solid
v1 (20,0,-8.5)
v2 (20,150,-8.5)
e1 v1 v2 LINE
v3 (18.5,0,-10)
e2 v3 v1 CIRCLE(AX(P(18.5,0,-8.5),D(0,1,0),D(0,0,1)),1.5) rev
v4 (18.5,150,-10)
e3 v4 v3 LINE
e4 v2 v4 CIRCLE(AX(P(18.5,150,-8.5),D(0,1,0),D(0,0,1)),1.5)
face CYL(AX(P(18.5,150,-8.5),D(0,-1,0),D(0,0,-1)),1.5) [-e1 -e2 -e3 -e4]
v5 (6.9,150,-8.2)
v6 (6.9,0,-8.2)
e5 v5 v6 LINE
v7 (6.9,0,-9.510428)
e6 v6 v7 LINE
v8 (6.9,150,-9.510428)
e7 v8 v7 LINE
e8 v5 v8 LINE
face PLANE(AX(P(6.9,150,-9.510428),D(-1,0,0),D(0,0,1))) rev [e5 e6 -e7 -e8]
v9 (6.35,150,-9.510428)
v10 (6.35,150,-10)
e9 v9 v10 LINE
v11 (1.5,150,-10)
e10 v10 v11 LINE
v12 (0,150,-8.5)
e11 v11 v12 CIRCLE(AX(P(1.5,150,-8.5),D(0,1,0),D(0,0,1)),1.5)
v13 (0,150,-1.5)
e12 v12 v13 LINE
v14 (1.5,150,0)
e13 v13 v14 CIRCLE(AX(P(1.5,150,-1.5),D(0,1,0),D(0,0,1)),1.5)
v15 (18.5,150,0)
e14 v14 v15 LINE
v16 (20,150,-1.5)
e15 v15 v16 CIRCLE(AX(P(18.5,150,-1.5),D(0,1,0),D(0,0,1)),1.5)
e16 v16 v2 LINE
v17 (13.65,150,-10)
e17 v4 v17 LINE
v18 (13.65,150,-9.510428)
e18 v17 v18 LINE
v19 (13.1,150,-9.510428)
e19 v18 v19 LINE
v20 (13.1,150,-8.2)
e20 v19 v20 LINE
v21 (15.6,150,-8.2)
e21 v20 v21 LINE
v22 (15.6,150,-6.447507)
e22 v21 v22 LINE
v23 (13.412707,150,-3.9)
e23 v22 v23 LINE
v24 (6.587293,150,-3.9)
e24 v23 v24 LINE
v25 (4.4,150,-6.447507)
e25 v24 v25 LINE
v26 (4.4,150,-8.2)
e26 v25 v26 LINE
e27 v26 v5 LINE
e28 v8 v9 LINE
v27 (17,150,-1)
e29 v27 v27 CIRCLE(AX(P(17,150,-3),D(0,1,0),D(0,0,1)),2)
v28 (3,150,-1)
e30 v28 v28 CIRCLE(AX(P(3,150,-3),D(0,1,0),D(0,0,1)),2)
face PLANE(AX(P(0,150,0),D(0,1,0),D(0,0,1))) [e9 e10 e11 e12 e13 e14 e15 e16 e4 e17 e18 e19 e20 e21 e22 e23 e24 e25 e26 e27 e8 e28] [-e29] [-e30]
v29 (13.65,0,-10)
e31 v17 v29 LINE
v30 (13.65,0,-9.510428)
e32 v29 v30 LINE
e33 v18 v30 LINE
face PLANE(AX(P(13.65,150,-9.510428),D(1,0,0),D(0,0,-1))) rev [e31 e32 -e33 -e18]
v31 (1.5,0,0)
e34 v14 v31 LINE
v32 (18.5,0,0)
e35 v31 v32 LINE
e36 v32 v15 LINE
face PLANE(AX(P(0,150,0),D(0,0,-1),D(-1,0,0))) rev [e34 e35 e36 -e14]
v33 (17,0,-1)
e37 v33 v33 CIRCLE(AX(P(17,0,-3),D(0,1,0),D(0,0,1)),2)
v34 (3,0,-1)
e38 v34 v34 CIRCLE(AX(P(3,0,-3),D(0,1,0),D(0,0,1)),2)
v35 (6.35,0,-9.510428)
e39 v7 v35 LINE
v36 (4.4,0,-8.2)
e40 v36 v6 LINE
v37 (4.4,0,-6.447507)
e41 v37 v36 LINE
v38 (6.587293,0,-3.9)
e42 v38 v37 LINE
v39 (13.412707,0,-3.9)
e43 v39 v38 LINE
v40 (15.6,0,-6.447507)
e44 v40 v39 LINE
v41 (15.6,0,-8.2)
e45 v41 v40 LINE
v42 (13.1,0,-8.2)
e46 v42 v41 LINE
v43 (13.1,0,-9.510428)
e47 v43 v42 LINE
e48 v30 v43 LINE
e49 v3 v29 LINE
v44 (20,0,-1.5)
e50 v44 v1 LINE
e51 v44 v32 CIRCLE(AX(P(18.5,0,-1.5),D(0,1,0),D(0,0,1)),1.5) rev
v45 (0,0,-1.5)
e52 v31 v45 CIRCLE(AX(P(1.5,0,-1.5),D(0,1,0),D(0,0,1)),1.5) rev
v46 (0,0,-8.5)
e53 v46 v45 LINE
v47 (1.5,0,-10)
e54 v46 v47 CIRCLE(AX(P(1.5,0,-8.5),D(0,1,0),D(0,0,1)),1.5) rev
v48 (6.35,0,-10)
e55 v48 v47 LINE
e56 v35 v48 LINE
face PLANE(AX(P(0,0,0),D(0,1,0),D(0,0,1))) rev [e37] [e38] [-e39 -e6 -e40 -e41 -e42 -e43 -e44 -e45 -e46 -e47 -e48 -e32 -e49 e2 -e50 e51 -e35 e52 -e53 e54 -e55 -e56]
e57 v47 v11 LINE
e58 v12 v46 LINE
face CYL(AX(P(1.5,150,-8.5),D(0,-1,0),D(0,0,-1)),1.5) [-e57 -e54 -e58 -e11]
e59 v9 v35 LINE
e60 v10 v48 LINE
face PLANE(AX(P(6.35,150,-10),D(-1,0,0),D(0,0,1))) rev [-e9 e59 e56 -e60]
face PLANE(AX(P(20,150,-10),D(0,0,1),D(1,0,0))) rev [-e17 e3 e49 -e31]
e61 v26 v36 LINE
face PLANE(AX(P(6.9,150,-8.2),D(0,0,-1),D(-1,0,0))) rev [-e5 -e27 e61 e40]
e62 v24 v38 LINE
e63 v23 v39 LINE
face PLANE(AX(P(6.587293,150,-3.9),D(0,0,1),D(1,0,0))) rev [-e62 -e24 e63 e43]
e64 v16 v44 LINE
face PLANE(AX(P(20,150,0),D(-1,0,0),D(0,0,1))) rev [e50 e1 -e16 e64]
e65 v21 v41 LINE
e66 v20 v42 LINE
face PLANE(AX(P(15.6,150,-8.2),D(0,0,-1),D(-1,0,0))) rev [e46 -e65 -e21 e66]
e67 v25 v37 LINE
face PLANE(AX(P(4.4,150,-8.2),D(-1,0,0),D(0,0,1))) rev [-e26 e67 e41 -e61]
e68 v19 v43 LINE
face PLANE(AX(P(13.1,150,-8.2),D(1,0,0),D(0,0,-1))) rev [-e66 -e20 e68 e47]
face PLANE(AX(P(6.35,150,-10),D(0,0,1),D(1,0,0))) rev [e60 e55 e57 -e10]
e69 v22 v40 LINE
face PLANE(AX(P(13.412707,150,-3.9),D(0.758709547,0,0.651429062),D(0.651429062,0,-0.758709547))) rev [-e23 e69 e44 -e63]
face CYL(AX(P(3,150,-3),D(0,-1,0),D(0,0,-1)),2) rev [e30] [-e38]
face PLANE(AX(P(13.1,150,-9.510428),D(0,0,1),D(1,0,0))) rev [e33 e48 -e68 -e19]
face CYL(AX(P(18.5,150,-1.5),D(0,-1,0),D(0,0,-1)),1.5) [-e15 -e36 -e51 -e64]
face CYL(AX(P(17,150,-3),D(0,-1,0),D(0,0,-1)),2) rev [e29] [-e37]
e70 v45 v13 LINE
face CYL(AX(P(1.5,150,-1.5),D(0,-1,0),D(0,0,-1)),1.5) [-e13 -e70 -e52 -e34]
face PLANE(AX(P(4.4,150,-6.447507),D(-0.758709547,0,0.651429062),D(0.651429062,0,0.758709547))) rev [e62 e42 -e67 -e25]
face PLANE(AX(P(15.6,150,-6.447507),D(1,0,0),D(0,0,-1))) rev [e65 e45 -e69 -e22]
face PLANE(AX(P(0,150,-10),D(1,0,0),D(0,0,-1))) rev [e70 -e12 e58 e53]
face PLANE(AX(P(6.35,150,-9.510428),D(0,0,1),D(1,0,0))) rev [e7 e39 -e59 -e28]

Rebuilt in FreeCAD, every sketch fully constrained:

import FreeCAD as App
import Part
import Sketcher

V = App.Vector


def edges_at(feature, points):
    """Names of the edges that pass closest to the given points."""
    edges = feature.Shape.Edges
    near = lambda p: min(range(len(edges)), key=lambda i: edges[i].distToShape(Part.Vertex(*p))[0])
    return sorted({f"Edge{near(p) + 1}" for p in points})

doc = App.newDocument("Part")
body = doc.addObject("PartDesign::Body", "Body")

# Sketch on XZ plane
sketch1 = body.newObject("Sketcher::SketchObject", "Sketch")
sketch1.AttachmentSupport = (doc.getObject("XZ_Plane"), [""])
sketch1.MapMode = "FlatFace"
sketch1.addGeometry([
    Part.LineSegment(V(0, 0, 0), V(20, 0, 0)),  # 0
    Part.LineSegment(V(20, 0, 0), V(20, -10, 0)),  # 1
    Part.LineSegment(V(20, -10, 0), V(13.65, -10, 0)),  # 2
    Part.LineSegment(V(13.65, -10, 0), V(13.65, -9.510428, 0)),  # 3
    Part.LineSegment(V(13.65, -9.510428, 0), V(13.1, -9.510428, 0)),  # 4
    Part.LineSegment(V(13.1, -9.510428, 0), V(13.1, -8.2, 0)),  # 5
    Part.LineSegment(V(13.1, -8.2, 0), V(15.6, -8.2, 0)),  # 6
    Part.LineSegment(V(15.6, -8.2, 0), V(15.6, -6.447507, 0)),  # 7
    Part.LineSegment(V(15.6, -6.447507, 0), V(13.412707, -3.9, 0)),  # 8
    Part.LineSegment(V(13.412707, -3.9, 0), V(6.587293, -3.9, 0)),  # 9
    Part.LineSegment(V(6.587293, -3.9, 0), V(4.4, -6.447507, 0)),  # 10
    Part.LineSegment(V(4.4, -6.447507, 0), V(4.4, -8.2, 0)),  # 11
    Part.LineSegment(V(4.4, -8.2, 0), V(6.9, -8.2, 0)),  # 12
    Part.LineSegment(V(6.9, -8.2, 0), V(6.9, -9.510428, 0)),  # 13
    Part.LineSegment(V(6.9, -9.510428, 0), V(6.35, -9.510428, 0)),  # 14
    Part.LineSegment(V(6.35, -9.510428, 0), V(6.35, -10, 0)),  # 15
    Part.LineSegment(V(6.35, -10, 0), V(0, -10, 0)),  # 16
    Part.LineSegment(V(0, -10, 0), V(0, 0, 0)),  # 17
    Part.Circle(V(3, -3, 0), V(0, 0, 1), 2),  # 18
    Part.Circle(V(17, -3, 0), V(0, 0, 1), 2),  # 19
], False)
sketch1.addConstraint([
    Sketcher.Constraint("Coincident", 0, 2, 1, 1),
    Sketcher.Constraint("Coincident", 1, 2, 2, 1),
    Sketcher.Constraint("Coincident", 2, 2, 3, 1),
    Sketcher.Constraint("Coincident", 3, 2, 4, 1),
    Sketcher.Constraint("Coincident", 4, 2, 5, 1),
    Sketcher.Constraint("Coincident", 5, 2, 6, 1),
    Sketcher.Constraint("Coincident", 6, 2, 7, 1),
    Sketcher.Constraint("Coincident", 7, 2, 8, 1),
    Sketcher.Constraint("Coincident", 8, 2, 9, 1),
    Sketcher.Constraint("Coincident", 9, 2, 10, 1),
    Sketcher.Constraint("Coincident", 10, 2, 11, 1),
    Sketcher.Constraint("Coincident", 11, 2, 12, 1),
    Sketcher.Constraint("Coincident", 12, 2, 13, 1),
    Sketcher.Constraint("Coincident", 13, 2, 14, 1),
    Sketcher.Constraint("Coincident", 14, 2, 15, 1),
    Sketcher.Constraint("Coincident", 15, 2, 16, 1),
    Sketcher.Constraint("Coincident", 16, 2, 17, 1),
    Sketcher.Constraint("Coincident", 17, 2, 0, 1),
    Sketcher.Constraint("Horizontal", 0),
    Sketcher.Constraint("Vertical", 1),
    Sketcher.Constraint("Horizontal", 2),
    Sketcher.Constraint("Vertical", 3),
    Sketcher.Constraint("Horizontal", 4),
    Sketcher.Constraint("Vertical", 5),
    Sketcher.Constraint("Horizontal", 6),
    Sketcher.Constraint("Vertical", 7),
    Sketcher.Constraint("Horizontal", 9),
    Sketcher.Constraint("Vertical", 11),
    Sketcher.Constraint("Horizontal", 12),
    Sketcher.Constraint("Vertical", 13),
    Sketcher.Constraint("Horizontal", 14),
    Sketcher.Constraint("Vertical", 15),
    Sketcher.Constraint("Horizontal", 16),
    Sketcher.Constraint("Vertical", 17),
    Sketcher.Constraint("Coincident", 17, 2, -1, 1),
    Sketcher.Constraint("Equal", 18, 19),
    Sketcher.Constraint("Horizontal", 18, 3, 19, 3),
    Sketcher.Constraint("Horizontal", 7, 2, 10, 2),
    Sketcher.Constraint("Horizontal", 6, 2, 11, 2),
    Sketcher.Constraint("Horizontal", 4, 2, 13, 2),
    Sketcher.Constraint("Horizontal", 2, 2, 15, 2),
    Sketcher.Constraint("Equal", 6, 12),
    Sketcher.Constraint("Equal", 4, 14),
    Sketcher.Constraint("Equal", 2, 16),
    Sketcher.Constraint("Equal", 8, 10),
    Sketcher.Constraint("Diameter", 18, 4.0),
    Sketcher.Constraint("DistanceX", 0, 1, 0, 2, 20.0),
    Sketcher.Constraint("DistanceY", 1, 2, 1, 1, 10.0),
    Sketcher.Constraint("DistanceX", 6, 1, 6, 2, 2.5),
    Sketcher.Constraint("DistanceX", -1, 1, 18, 3, 3.0),
    Sketcher.Constraint("DistanceY", 18, 3, -1, 1, 3.0),
    Sketcher.Constraint("DistanceX", -1, 1, 19, 3, 17.0),
    Sketcher.Constraint("DistanceX", 2, 2, 2, 1, 6.35),
    Sketcher.Constraint("DistanceX", 4, 2, 4, 1, 0.55),
    Sketcher.Constraint("DistanceY", 5, 2, -1, 1, 8.2),
    Sketcher.Constraint("DistanceY", 8, 2, -1, 1, 3.9),
    Sketcher.Constraint("DistanceX", 9, 2, 9, 1, 6.825414),
    Sketcher.Constraint("DistanceY", 3, 1, 3, 2, 0.489572),
    Sketcher.Constraint("DistanceY", 7, 1, 7, 2, 1.752493),
])
pad1 = body.newObject("PartDesign::Pad", "Pad")
pad1.Profile = sketch1
pad1.Length = 150
pad1.Reversed = True
doc.recompute()

fillet = body.newObject("PartDesign::Fillet", "Fillet")
fillet.Base = (pad1, edges_at(pad1, [
    (0, 75, -10),
    (20, 75, -10),
    (20, 75, 0),
    (0, 75, 0),
]))
fillet.Radius = 1.5

doc.recompute()
